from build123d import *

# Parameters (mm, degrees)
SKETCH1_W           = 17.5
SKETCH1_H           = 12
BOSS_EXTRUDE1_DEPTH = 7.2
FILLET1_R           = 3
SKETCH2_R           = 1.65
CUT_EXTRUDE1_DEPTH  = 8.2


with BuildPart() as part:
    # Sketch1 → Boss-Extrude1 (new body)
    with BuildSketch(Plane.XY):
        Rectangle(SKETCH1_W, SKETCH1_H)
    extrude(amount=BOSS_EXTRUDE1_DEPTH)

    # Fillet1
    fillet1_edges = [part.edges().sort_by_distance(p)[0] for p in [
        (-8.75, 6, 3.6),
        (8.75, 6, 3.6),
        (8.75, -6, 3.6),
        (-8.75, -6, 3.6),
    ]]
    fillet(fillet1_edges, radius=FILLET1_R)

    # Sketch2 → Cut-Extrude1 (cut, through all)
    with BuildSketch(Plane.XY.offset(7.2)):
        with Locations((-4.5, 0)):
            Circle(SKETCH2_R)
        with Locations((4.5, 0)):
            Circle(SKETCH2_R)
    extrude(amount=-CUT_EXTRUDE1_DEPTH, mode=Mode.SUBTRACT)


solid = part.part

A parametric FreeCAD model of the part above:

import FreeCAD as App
import Part
import Sketcher

V = App.Vector
Q = App.Units.Quantity


def edges_at(feature, points):
    """Names of the edges that pass closest to the given points."""
    edges = feature.Shape.Edges
    near = lambda p: min(range(len(edges)), key=lambda i: edges[i].distToShape(Part.Vertex(*p))[0])
    return sorted({f"Edge{near(p) + 1}" for p in points})


def add_polygon(sketch, points):
    """Adds a closed chain of lines whose ends are joined by coincident constraints."""
    first, n = sketch.GeometryCount, len(points)
    for a, b in zip(points, points[1:] + points[:1]):
        sketch.addGeometry(Part.LineSegment(App.Vector(*a, 0), App.Vector(*b, 0)), False)
    for i in range(n):
        sketch.addConstraint(Sketcher.Constraint("Coincident", first + i, 2, first + (i + 1) % n, 1))

doc = App.newDocument("Part")
params = doc.addObject("Spreadsheet::Sheet", "Params")
for row, (alias, value) in enumerate([
    ("sketch1_height", "12 mm"),
    ("sketch1_width", "17.5 mm"),
    ("pad1_length", "7.2 mm"),
    ("fillet_radius", "3 mm"),
    ("sketch2_diameter", "3.3 mm"),
], start=1):
    params.set(f"A{row}", alias)
    params.set(f"B{row}", "=" + value)
    params.setAlias(f"B{row}", alias)

body = doc.addObject("PartDesign::Body", "Body")

# Sketch on XY plane
sketch1 = body.newObject("Sketcher::SketchObject", "Sketch")
sketch1.AttachmentSupport = (doc.getObject("XY_Plane"), [""])
sketch1.MapMode = "FlatFace"
add_polygon(sketch1, [(-8.75, 6), (-8.75, -6), (8.75, -6), (8.75, 6)])  # lines 0-3
sketch1.addConstraint(Sketcher.Constraint("Vertical", 0))
sketch1.addConstraint(Sketcher.Constraint("Horizontal", 1))
sketch1.addConstraint(Sketcher.Constraint("Vertical", 2))
sketch1.addConstraint(Sketcher.Constraint("Horizontal", 3))
sketch1.addConstraint(Sketcher.Constraint("Symmetric", 0, 2, 2, 2, -1, 1))
sketch1.addConstraint(Sketcher.Constraint("DistanceY", 0, 2, 0, 1, Q("12 mm")))
sketch1.addConstraint(Sketcher.Constraint("DistanceX", 1, 1, 1, 2, Q("17.5 mm")))
sketch1.setExpression("Constraints[9]", "Params.sketch1_height")
sketch1.setExpression("Constraints[10]", "Params.sketch1_width")
pad1 = body.newObject("PartDesign::Pad", "Pad")
pad1.Profile = sketch1
pad1.setExpression("Length", "Params.pad1_length")
doc.recompute()

fillet = body.newObject("PartDesign::Fillet", "Fillet")
fillet.Base = (pad1, edges_at(pad1, [
    (-8.75, 6, 3.6),
    (8.75, 6, 3.6),
    (8.75, -6, 3.6),
    (-8.75, -6, 3.6),
]))
fillet.setExpression("Radius", "Params.fillet_radius")

# Sketch on XY plane
sketch2 = body.newObject("Sketcher::SketchObject", "Sketch001")
sketch2.AttachmentSupport = (doc.getObject("XY_Plane"), [""])
sketch2.MapMode = "FlatFace"
sketch2.AttachmentOffset = App.Placement(V(0, 0, 7.2), App.Rotation())
sketch2.addGeometry(Part.Circle(V(-4.5, 0, 0), V(0, 0, 1), 1.65), False)
sketch2.addGeometry(Part.Circle(V(4.5, 0, 0), V(0, 0, 1), 1.65), False)
sketch2.addConstraint(Sketcher.Constraint("Equal", 0, 1))
sketch2.addConstraint(Sketcher.Constraint("Symmetric", 0, 3, 1, 3, -1, 1))
sketch2.addConstraint(Sketcher.Constraint("PointOnObject", 0, 3, -1))
sketch2.addConstraint(Sketcher.Constraint("Diameter", 0, Q("3.3 mm")))
sketch2.addConstraint(Sketcher.Constraint("DistanceX", 0, 3, 1, 3, Q("9 mm")))
sketch2.setExpression("Constraints[3]", "Params.sketch2_diameter")
pocket1 = body.newObject("PartDesign::Pocket", "Pocket")
pocket1.Profile = sketch2
pocket1.Type = "ThroughAll"

doc.recompute()
